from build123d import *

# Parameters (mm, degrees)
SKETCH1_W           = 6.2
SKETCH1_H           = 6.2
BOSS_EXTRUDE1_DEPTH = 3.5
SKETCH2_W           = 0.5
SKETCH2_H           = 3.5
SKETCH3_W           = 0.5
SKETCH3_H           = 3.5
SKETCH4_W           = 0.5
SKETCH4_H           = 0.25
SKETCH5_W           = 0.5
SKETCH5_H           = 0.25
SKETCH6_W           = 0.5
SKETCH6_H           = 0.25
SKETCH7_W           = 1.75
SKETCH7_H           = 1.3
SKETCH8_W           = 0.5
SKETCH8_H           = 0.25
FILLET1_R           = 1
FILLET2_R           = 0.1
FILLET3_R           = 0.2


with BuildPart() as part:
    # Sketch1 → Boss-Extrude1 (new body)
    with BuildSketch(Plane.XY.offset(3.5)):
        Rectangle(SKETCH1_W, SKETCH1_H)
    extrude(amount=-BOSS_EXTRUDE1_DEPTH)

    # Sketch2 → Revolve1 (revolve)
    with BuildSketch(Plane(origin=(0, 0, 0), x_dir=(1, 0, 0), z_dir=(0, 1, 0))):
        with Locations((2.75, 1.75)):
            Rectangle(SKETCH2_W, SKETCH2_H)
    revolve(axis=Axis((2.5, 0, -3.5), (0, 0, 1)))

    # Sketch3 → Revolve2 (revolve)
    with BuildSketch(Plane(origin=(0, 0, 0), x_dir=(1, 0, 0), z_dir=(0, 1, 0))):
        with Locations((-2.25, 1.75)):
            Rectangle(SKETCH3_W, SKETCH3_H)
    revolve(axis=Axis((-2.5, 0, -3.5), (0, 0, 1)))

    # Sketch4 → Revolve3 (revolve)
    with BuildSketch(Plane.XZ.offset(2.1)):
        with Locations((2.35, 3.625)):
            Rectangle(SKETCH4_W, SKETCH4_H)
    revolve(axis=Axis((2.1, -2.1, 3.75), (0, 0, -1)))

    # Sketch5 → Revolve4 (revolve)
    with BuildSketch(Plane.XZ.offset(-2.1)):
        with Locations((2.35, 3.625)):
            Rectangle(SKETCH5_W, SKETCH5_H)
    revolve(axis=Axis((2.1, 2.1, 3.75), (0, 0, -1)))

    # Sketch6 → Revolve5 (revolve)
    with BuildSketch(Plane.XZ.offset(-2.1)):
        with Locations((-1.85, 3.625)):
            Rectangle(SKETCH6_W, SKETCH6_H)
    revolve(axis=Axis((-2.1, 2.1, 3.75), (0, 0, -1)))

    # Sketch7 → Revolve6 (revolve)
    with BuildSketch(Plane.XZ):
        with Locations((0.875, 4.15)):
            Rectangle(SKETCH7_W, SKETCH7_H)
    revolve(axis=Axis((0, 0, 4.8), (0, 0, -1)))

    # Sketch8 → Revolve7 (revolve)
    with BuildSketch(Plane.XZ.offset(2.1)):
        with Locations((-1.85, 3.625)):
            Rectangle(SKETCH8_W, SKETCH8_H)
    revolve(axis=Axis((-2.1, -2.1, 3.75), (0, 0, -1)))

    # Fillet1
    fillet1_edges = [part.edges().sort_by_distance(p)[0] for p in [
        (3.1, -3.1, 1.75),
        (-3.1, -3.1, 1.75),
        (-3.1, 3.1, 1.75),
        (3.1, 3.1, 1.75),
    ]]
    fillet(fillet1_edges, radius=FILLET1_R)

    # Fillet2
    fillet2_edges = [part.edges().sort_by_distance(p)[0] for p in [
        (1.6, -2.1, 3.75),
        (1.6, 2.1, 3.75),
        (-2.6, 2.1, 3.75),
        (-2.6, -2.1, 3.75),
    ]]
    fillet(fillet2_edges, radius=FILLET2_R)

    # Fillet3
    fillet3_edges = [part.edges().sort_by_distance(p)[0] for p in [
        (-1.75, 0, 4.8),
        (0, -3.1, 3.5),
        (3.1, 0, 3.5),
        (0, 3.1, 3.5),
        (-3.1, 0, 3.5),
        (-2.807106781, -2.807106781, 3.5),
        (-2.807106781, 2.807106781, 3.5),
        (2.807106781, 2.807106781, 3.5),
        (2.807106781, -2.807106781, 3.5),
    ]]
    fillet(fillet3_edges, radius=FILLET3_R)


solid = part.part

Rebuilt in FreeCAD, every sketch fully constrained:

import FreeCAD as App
import Part
import Sketcher


def edges_at(feature, points):
    """Names of the edges that pass closest to the given points."""
    edges = feature.Shape.Edges
    near = lambda p: min(range(len(edges)), key=lambda i: edges[i].distToShape(Part.Vertex(*p))[0])
    return sorted({f"Edge{near(p) + 1}" for p in points})

doc = App.newDocument("Part")
body = doc.addObject("PartDesign::Body", "Body")

# Sketch on XY plane
sketch1 = body.newObject("Sketcher::SketchObject", "Sketch")
sketch1.AttachmentSupport = (doc.getObject("XY_Plane"), [""])
sketch1.MapMode = "FlatFace"
sketch1.AttachmentOffset = App.Placement(App.Vector(0, 0, 3.5), App.Rotation())
sketch1.addGeometry([
    Part.LineSegment(App.Vector(-3, 3, 0), App.Vector(-3, -3, 0)),
    Part.LineSegment(App.Vector(-3, -3, 0), App.Vector(3, -3, 0)),
    Part.LineSegment(App.Vector(3, -3, 0), App.Vector(3, 3, 0)),
    Part.LineSegment(App.Vector(3, 3, 0), App.Vector(-3, 3, 0)),
], False)
sketch1.addConstraint([
    Sketcher.Constraint("Coincident", 0, 2, 1, 1),
    Sketcher.Constraint("Coincident", 1, 2, 2, 1),
    Sketcher.Constraint("Coincident", 2, 2, 3, 1),
    Sketcher.Constraint("Coincident", 3, 2, 0, 1),
    Sketcher.Constraint("Vertical", 0),
    Sketcher.Constraint("Horizontal", 1),
    Sketcher.Constraint("Vertical", 2),
    Sketcher.Constraint("Horizontal", 3),
    Sketcher.Constraint("Symmetric", 0, 2, 2, 2, -1, 1),
    Sketcher.Constraint("Equal", 3, 0),
    Sketcher.Constraint("DistanceX", 1, 1, 1, 2, 6.2),
])
pad1 = body.newObject("PartDesign::Pad", "Pad")
pad1.Profile = sketch1
pad1.Length = 3.5
pad1.Reversed = True

# Sketch on XZ plane
sketch2 = body.newObject("Sketcher::SketchObject", "Sketch001")
sketch2.AttachmentSupport = (doc.getObject("XZ_Plane"), [""])
sketch2.MapMode = "FlatFace"
sketch2.addGeometry([
    Part.LineSegment(App.Vector(2.5, -3.5, 0), App.Vector(2.5, 0, 0)),
    Part.LineSegment(App.Vector(2.5, 0, 0), App.Vector(3, 0, 0)),
    Part.LineSegment(App.Vector(3, 0, 0), App.Vector(3, -3.5, 0)),
    Part.LineSegment(App.Vector(3, -3.5, 0), App.Vector(2.5, -3.5, 0)),
], False)
sketch2.addGeometry(Part.LineSegment(App.Vector(2.5, -3.5, 0), App.Vector(2.5, 0, 0)), True)  # axis
sketch2.addConstraint([
    Sketcher.Constraint("Coincident", 0, 2, 1, 1),
    Sketcher.Constraint("Coincident", 1, 2, 2, 1),
    Sketcher.Constraint("Coincident", 2, 2, 3, 1),
    Sketcher.Constraint("Coincident", 3, 2, 0, 1),
    Sketcher.Constraint("Vertical", 0),
    Sketcher.Constraint("Horizontal", 1),
    Sketcher.Constraint("Vertical", 2),
    Sketcher.Constraint("Horizontal", 3),
    Sketcher.Constraint("Vertical", 4),
    Sketcher.Constraint("Coincident", 4, 1, 3, 2),
    Sketcher.Constraint("PointOnObject", 0, 2, -1),
    Sketcher.Constraint("PointOnObject", 4, 2, -1),
    Sketcher.Constraint("DistanceX", 1, 1, 1, 2, 0.5),
    Sketcher.Constraint("DistanceY", 0, 1, 0, 2, 3.5),
    Sketcher.Constraint("DistanceX", -1, 1, 1, 2, 3.0),
])
revolution = body.newObject("PartDesign::Revolution", "Revolution")
revolution.Profile = sketch2
revolution.ReferenceAxis = (sketch2, ["Axis0"])
revolution.Angle = 360

# Sketch on XZ plane
sketch3 = body.newObject("Sketcher::SketchObject", "Sketch002")
sketch3.AttachmentSupport = (doc.getObject("XZ_Plane"), [""])
sketch3.MapMode = "FlatFace"
sketch3.addGeometry([
    Part.LineSegment(App.Vector(-2.5, -3.5, 0), App.Vector(-2.5, 0, 0)),
    Part.LineSegment(App.Vector(-2.5, 0, 0), App.Vector(-2, 0, 0)),
    Part.LineSegment(App.Vector(-2, 0, 0), App.Vector(-2, -3.5, 0)),
    Part.LineSegment(App.Vector(-2, -3.5, 0), App.Vector(-2.5, -3.5, 0)),
], False)
sketch3.addGeometry(Part.LineSegment(App.Vector(-2.5, -3.5, 0), App.Vector(-2.5, 0, 0)), True)  # axis
sketch3.addConstraint([
    Sketcher.Constraint("Coincident", 0, 2, 1, 1),
    Sketcher.Constraint("Coincident", 1, 2, 2, 1),
    Sketcher.Constraint("Coincident", 2, 2, 3, 1),
    Sketcher.Constraint("Coincident", 3, 2, 0, 1),
    Sketcher.Constraint("Vertical", 0),
    Sketcher.Constraint("Horizontal", 1),
    Sketcher.Constraint("Vertical", 2),
    Sketcher.Constraint("Horizontal", 3),
    Sketcher.Constraint("Vertical", 4),
    Sketcher.Constraint("Coincident", 4, 1, 3, 2),
    Sketcher.Constraint("PointOnObject", 0, 2, -1),
    Sketcher.Constraint("PointOnObject", 4, 2, -1),
    Sketcher.Constraint("DistanceX", 1, 1, 1, 2, 0.5),
    Sketcher.Constraint("DistanceY", 0, 1, 0, 2, 3.5),
    Sketcher.Constraint("DistanceX", 1, 2, -1, 1, 2.0),
])
revolution2 = body.newObject("PartDesign::Revolution", "Revolution001")
revolution2.Profile = sketch3
revolution2.ReferenceAxis = (sketch3, ["Axis0"])
revolution2.Angle = 360

# Sketch on XZ plane
sketch4 = body.newObject("Sketcher::SketchObject", "Sketch003")
sketch4.AttachmentSupport = (doc.getObject("XZ_Plane"), [""])
sketch4.MapMode = "FlatFace"
sketch4.AttachmentOffset = App.Placement(App.Vector(0, 0, 2.1), App.Rotation())
sketch4.addGeometry([
    Part.LineSegment(App.Vector(2.1, 3.75, 0), App.Vector(2.1, 3.5, 0)),
    Part.LineSegment(App.Vector(2.1, 3.5, 0), App.Vector(2.6, 3.5, 0)),
    Part.LineSegment(App.Vector(2.6, 3.5, 0), App.Vector(2.6, 3.75, 0)),
    Part.LineSegment(App.Vector(2.6, 3.75, 0), App.Vector(2.1, 3.75, 0)),
], False)
sketch4.addGeometry(Part.LineSegment(App.Vector(2.1, 3.75, 0), App.Vector(2.1, 3.5, 0)), True)  # axis
sketch4.addConstraint([
    Sketcher.Constraint("Coincident", 0, 2, 1, 1),
    Sketcher.Constraint("Coincident", 1, 2, 2, 1),
    Sketcher.Constraint("Coincident", 2, 2, 3, 1),
    Sketcher.Constraint("Coincident", 3, 2, 0, 1),
    Sketcher.Constraint("Vertical", 0),
    Sketcher.Constraint("Horizontal", 1),
    Sketcher.Constraint("Vertical", 2),
    Sketcher.Constraint("Horizontal", 3),
    Sketcher.Constraint("Vertical", 4),
    Sketcher.Constraint("Coincident", 4, 1, 3, 2),
    Sketcher.Constraint("Horizontal", 1, 2, 4, 2),
    Sketcher.Constraint("DistanceX", 1, 1, 1, 2, 0.5),
    Sketcher.Constraint("DistanceY", 0, 2, 0, 1, 0.25),
    Sketcher.Constraint("DistanceX", -1, 1, 0, 2, 2.1),
    Sketcher.Constraint("DistanceY", -1, 1, 0, 2, 3.5),
])
revolution3 = body.newObject("PartDesign::Revolution", "Revolution002")
revolution3.Profile = sketch4
revolution3.ReferenceAxis = (sketch4, ["Axis0"])
revolution3.Angle = 360

# Sketch on XZ plane
sketch5 = body.newObject("Sketcher::SketchObject", "Sketch004")
sketch5.AttachmentSupport = (doc.getObject("XZ_Plane"), [""])
sketch5.MapMode = "FlatFace"
sketch5.AttachmentOffset = App.Placement(App.Vector(0, 0, -2.1), App.Rotation())
sketch5.addGeometry([
    Part.LineSegment(App.Vector(2.1, 3.75, 0), App.Vector(2.1, 3.5, 0)),
    Part.LineSegment(App.Vector(2.1, 3.5, 0), App.Vector(2.6, 3.5, 0)),
    Part.LineSegment(App.Vector(2.6, 3.5, 0), App.Vector(2.6, 3.75, 0)),
    Part.LineSegment(App.Vector(2.6, 3.75, 0), App.Vector(2.1, 3.75, 0)),
], False)
sketch5.addGeometry(Part.LineSegment(App.Vector(2.1, 3.75, 0), App.Vector(2.1, 3.5, 0)), True)  # axis
sketch5.addConstraint([
    Sketcher.Constraint("Coincident", 0, 2, 1, 1),
    Sketcher.Constraint("Coincident", 1, 2, 2, 1),
    Sketcher.Constraint("Coincident", 2, 2, 3, 1),
    Sketcher.Constraint("Coincident", 3, 2, 0, 1),
    Sketcher.Constraint("Vertical", 0),
    Sketcher.Constraint("Horizontal", 1),
    Sketcher.Constraint("Vertical", 2),
    Sketcher.Constraint("Horizontal", 3),
    Sketcher.Constraint("Vertical", 4),
    Sketcher.Constraint("Coincident", 4, 1, 3, 2),
    Sketcher.Constraint("Horizontal", 1, 2, 4, 2),
    Sketcher.Constraint("DistanceX", 1, 1, 1, 2, 0.5),
    Sketcher.Constraint("DistanceY", 0, 2, 0, 1, 0.25),
    Sketcher.Constraint("DistanceX", -1, 1, 0, 2, 2.1),
    Sketcher.Constraint("DistanceY", -1, 1, 0, 2, 3.5),
])
revolution4 = body.newObject("PartDesign::Revolution", "Revolution003")
revolution4.Profile = sketch5
revolution4.ReferenceAxis = (sketch5, ["Axis0"])
revolution4.Angle = 360

# Sketch on XZ plane
sketch6 = body.newObject("Sketcher::SketchObject", "Sketch005")
sketch6.AttachmentSupport = (doc.getObject("XZ_Plane"), [""])
sketch6.MapMode = "FlatFace"
sketch6.AttachmentOffset = App.Placement(App.Vector(0, 0, -2.1), App.Rotation())
sketch6.addGeometry([
    Part.LineSegment(App.Vector(-2.1, 3.75, 0), App.Vector(-2.1, 3.5, 0)),
    Part.LineSegment(App.Vector(-2.1, 3.5, 0), App.Vector(-1.6, 3.5, 0)),
    Part.LineSegment(App.Vector(-1.6, 3.5, 0), App.Vector(-1.6, 3.75, 0)),
    Part.LineSegment(App.Vector(-1.6, 3.75, 0), App.Vector(-2.1, 3.75, 0)),
], False)
sketch6.addGeometry(Part.LineSegment(App.Vector(-2.1, 3.75, 0), App.Vector(-2.1, 3.5, 0)), True)  # axis
sketch6.addConstraint([
    Sketcher.Constraint("Coincident", 0, 2, 1, 1),
    Sketcher.Constraint("Coincident", 1, 2, 2, 1),
    Sketcher.Constraint("Coincident", 2, 2, 3, 1),
    Sketcher.Constraint("Coincident", 3, 2, 0, 1),
    Sketcher.Constraint("Vertical", 0),
    Sketcher.Constraint("Horizontal", 1),
    Sketcher.Constraint("Vertical", 2),
    Sketcher.Constraint("Horizontal", 3),
    Sketcher.Constraint("Vertical", 4),
    Sketcher.Constraint("Coincident", 4, 1, 3, 2),
    Sketcher.Constraint("Horizontal", 1, 2, 4, 2),
    Sketcher.Constraint("DistanceX", 1, 1, 1, 2, 0.5),
    Sketcher.Constraint("DistanceY", 0, 2, 0, 1, 0.25),
    Sketcher.Constraint("DistanceX", 0, 2, -1, 1, 2.1),
    Sketcher.Constraint("DistanceY", -1, 1, 0, 2, 3.5),
])
revolution5 = body.newObject("PartDesign::Revolution", "Revolution004")
revolution5.Profile = sketch6
revolution5.ReferenceAxis = (sketch6, ["Axis0"])
revolution5.Angle = 360

# Sketch on XZ plane
sketch7 = body.newObject("Sketcher::SketchObject", "Sketch006")
sketch7.AttachmentSupport = (doc.getObject("XZ_Plane"), [""])
sketch7.MapMode = "FlatFace"
sketch7.addGeometry([
    Part.LineSegment(App.Vector(0, 4.8, 0), App.Vector(0, 3.5, 0)),
    Part.LineSegment(App.Vector(0, 3.5, 0), App.Vector(1.8, 3.5, 0)),
    Part.LineSegment(App.Vector(1.8, 3.5, 0), App.Vector(1.8, 4.8, 0)),
    Part.LineSegment(App.Vector(1.8, 4.8, 0), App.Vector(0, 4.8, 0)),
], False)
sketch7.addConstraint([
    Sketcher.Constraint("Coincident", 0, 2, 1, 1),
    Sketcher.Constraint("Coincident", 1, 2, 2, 1),
    Sketcher.Constraint("Coincident", 2, 2, 3, 1),
    Sketcher.Constraint("Coincident", 3, 2, 0, 1),
    Sketcher.Constraint("Vertical", 0),
    Sketcher.Constraint("Horizontal", 1),
    Sketcher.Constraint("Vertical", 2),
    Sketcher.Constraint("Horizontal", 3),
    Sketcher.Constraint("PointOnObject", 0, 2, -2),
    Sketcher.Constraint("DistanceY", 0, 2, 0, 1, 1.3),
    Sketcher.Constraint("DistanceX", 1, 1, 1, 2, 1.75),
    Sketcher.Constraint("DistanceY", -1, 1, 0, 2, 3.5),
])
revolution6 = body.newObject("PartDesign::Revolution", "Revolution005")
revolution6.Profile = sketch7
revolution6.ReferenceAxis = (sketch7, ["V_Axis"])
revolution6.Angle = 360

# Sketch on XZ plane
sketch8 = body.newObject("Sketcher::SketchObject", "Sketch007")
sketch8.AttachmentSupport = (doc.getObject("XZ_Plane"), [""])
sketch8.MapMode = "FlatFace"
sketch8.AttachmentOffset = App.Placement(App.Vector(0, 0, 2.1), App.Rotation())
sketch8.addGeometry([
    Part.LineSegment(App.Vector(-2.1, 3.75, 0), App.Vector(-2.1, 3.5, 0)),
    Part.LineSegment(App.Vector(-2.1, 3.5, 0), App.Vector(-1.6, 3.5, 0)),
    Part.LineSegment(App.Vector(-1.6, 3.5, 0), App.Vector(-1.6, 3.75, 0)),
    Part.LineSegment(App.Vector(-1.6, 3.75, 0), App.Vector(-2.1, 3.75, 0)),
], False)
sketch8.addGeometry(Part.LineSegment(App.Vector(-2.1, 3.75, 0), App.Vector(-2.1, 3.5, 0)), True)  # axis
sketch8.addConstraint([
    Sketcher.Constraint("Coincident", 0, 2, 1, 1),
    Sketcher.Constraint("Coincident", 1, 2, 2, 1),
    Sketcher.Constraint("Coincident", 2, 2, 3, 1),
    Sketcher.Constraint("Coincident", 3, 2, 0, 1),
    Sketcher.Constraint("Vertical", 0),
    Sketcher.Constraint("Horizontal", 1),
    Sketcher.Constraint("Vertical", 2),
    Sketcher.Constraint("Horizontal", 3),
    Sketcher.Constraint("Vertical", 4),
    Sketcher.Constraint("Coincident", 4, 1, 3, 2),
    Sketcher.Constraint("Horizontal", 1, 2, 4, 2),
    Sketcher.Constraint("DistanceX", 1, 1, 1, 2, 0.5),
    Sketcher.Constraint("DistanceY", 0, 2, 0, 1, 0.25),
    Sketcher.Constraint("DistanceX", 0, 2, -1, 1, 2.1),
    Sketcher.Constraint("DistanceY", -1, 1, 0, 2, 3.5),
])
revolution7 = body.newObject("PartDesign::Revolution", "Revolution006")
revolution7.Profile = sketch8
revolution7.ReferenceAxis = (sketch8, ["Axis0"])
revolution7.Angle = 360
doc.recompute()

fillet = body.newObject("PartDesign::Fillet", "Fillet")
fillet.Base = (revolution7, edges_at(revolution7, [
    (3.1, -3.1, 1.75),
    (-3.1, -3.1, 1.75),
    (-3.1, 3.1, 1.75),
    (3.1, 3.1, 1.75),
]))
fillet.Radius = 1
doc.recompute()

fillet2 = body.newObject("PartDesign::Fillet", "Fillet001")
fillet2.Base = (fillet, edges_at(fillet, [
    (1.6, -2.1, 3.75),
    (1.6, 2.1, 3.75),
    (-2.6, 2.1, 3.75),
    (-2.6, -2.1, 3.75),
]))
fillet2.Radius = 0.1
doc.recompute()

fillet3 = body.newObject("PartDesign::Fillet", "Fillet002")
fillet3.Base = (fillet2, edges_at(fillet2, [
    (-1.75, 0, 4.8),
    (0, -3.1, 3.5),
    (3.1, 0, 3.5),
    (0, 3.1, 3.5),
    (-3.1, 0, 3.5),
    (-2.807, -2.807, 3.5),
    (-2.807, 2.807, 3.5),
    (2.807, 2.807, 3.5),
    (2.807, -2.807, 3.5),
]))
fillet3.Radius = 0.2

doc.recompute()
